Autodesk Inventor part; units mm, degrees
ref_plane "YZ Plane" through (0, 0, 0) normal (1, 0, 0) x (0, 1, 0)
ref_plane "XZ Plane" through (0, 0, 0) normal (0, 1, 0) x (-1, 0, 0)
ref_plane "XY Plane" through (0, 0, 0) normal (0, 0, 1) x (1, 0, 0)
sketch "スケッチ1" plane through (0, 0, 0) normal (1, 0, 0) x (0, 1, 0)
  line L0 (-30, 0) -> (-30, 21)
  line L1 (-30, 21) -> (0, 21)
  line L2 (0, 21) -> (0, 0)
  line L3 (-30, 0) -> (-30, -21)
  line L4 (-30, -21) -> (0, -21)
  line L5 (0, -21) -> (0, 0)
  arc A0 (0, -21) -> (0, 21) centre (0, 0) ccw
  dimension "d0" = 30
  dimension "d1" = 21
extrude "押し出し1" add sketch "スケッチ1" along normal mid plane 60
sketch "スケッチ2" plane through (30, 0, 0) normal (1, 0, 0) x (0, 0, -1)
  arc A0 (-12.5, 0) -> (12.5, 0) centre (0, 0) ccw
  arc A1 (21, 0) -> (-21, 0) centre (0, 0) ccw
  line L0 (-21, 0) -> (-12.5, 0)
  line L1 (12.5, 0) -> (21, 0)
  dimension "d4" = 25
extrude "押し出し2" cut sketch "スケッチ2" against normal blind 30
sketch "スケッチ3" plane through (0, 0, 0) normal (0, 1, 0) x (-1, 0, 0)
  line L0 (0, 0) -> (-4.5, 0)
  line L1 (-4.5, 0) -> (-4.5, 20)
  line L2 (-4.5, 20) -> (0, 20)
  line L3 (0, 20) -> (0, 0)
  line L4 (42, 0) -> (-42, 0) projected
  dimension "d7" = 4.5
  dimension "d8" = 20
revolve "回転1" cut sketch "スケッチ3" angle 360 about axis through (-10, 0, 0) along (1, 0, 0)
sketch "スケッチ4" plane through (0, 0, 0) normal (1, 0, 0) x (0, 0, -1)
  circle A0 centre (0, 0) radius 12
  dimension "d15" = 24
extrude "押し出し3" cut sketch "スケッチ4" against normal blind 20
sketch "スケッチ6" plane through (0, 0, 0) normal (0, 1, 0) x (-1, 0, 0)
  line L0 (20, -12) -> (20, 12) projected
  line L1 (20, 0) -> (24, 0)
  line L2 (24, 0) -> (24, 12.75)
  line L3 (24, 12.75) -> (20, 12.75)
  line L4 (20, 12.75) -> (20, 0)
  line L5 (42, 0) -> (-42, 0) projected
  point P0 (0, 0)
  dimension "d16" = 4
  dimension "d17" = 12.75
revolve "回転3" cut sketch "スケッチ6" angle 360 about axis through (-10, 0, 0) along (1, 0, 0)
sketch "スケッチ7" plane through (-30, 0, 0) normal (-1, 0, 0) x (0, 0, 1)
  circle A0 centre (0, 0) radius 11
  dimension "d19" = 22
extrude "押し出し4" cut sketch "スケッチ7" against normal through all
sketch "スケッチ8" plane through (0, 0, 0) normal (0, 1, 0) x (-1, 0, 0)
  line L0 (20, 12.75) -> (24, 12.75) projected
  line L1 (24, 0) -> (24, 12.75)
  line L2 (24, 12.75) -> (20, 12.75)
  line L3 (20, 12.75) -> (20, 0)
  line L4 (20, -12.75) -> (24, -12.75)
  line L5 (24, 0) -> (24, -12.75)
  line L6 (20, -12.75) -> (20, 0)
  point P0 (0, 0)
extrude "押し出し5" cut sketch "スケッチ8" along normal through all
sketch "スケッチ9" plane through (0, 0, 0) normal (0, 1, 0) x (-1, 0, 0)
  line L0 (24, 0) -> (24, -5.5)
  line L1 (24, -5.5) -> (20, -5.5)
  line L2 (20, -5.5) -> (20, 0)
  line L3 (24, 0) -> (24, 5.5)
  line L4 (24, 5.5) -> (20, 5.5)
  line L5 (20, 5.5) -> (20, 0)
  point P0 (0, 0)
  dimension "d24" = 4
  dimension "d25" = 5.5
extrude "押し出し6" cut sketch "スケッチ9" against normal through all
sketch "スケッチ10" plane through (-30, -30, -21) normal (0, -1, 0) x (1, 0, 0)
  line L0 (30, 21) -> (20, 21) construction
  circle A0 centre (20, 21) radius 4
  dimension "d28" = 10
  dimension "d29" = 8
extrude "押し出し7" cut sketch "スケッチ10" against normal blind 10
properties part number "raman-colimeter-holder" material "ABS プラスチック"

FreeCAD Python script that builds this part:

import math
import FreeCAD as App
import Part
import Sketcher

V = App.Vector
Q = App.Units.Quantity


def add_polygon(sketch, points):
    """Adds a closed chain of lines whose ends are joined by coincident constraints."""
    first, n = sketch.GeometryCount, len(points)
    for a, b in zip(points, points[1:] + points[:1]):
        sketch.addGeometry(Part.LineSegment(App.Vector(*a, 0), App.Vector(*b, 0)), False)
    for i in range(n):
        sketch.addConstraint(Sketcher.Constraint("Coincident", first + i, 2, first + (i + 1) % n, 1))

doc = App.newDocument("Part")
body = doc.addObject("PartDesign::Body", "Body")

# Sketch on YZ plane
sketch1 = doc.addObject("Sketcher::SketchObject", "Sketch")
body.addObject(sketch1)
sketch1.AttachmentSupport = (doc.YZ_Plane, [""])
sketch1.MapMode = "FlatFace"
sketch1.addGeometry(Part.LineSegment(V(-30, 21, 0), V(-30, -21, 0)), False)
sketch1.addGeometry(Part.LineSegment(V(-30, -21, 0), V(0, -21, 0)), False)
sketch1.addGeometry(Part.ArcOfCircle(Part.Circle(V(0, 0, 0), V(0, 0, 1), 21), math.radians(-90), math.radians(90)), False)
sketch1.addGeometry(Part.LineSegment(V(0, 21, 0), V(-30, 21, 0)), False)
sketch1.addConstraint(Sketcher.Constraint("Coincident", 0, 2, 1, 1))
sketch1.addConstraint(Sketcher.Constraint("Tangent", 1, 2, 2, 1))
sketch1.addConstraint(Sketcher.Constraint("Tangent", 2, 2, 3, 1))
sketch1.addConstraint(Sketcher.Constraint("Coincident", 3, 2, 0, 1))
sketch1.addConstraint(Sketcher.Constraint("Vertical", 0))
sketch1.addConstraint(Sketcher.Constraint("Horizontal", 1))
sketch1.addConstraint(Sketcher.Constraint("Horizontal", 3))
sketch1.addConstraint(Sketcher.Constraint("Coincident", 2, 3, -1, 1))
sketch1.addConstraint(Sketcher.Constraint("Radius", 2, Q("21 mm")))
sketch1.addConstraint(Sketcher.Constraint("DistanceX", 1, 1, 1, 2, Q("30 mm")))
pad1 = doc.addObject("PartDesign::Pad", "Pad")
body.addObject(pad1)
pad1.Profile = sketch1
pad1.Length = 60
pad1.Midplane = True

# Sketch on YZ plane
sketch2 = doc.addObject("Sketcher::SketchObject", "Sketch001")
body.addObject(sketch2)
sketch2.AttachmentSupport = (doc.YZ_Plane, [""])
sketch2.MapMode = "FlatFace"
sketch2.AttachmentOffset = App.Placement(V(0, 0, 30), App.Rotation())
sketch2.addGeometry(Part.LineSegment(V(0, 21, 0), V(0, 12, 0)), False)
sketch2.addGeometry(Part.ArcOfCircle(Part.Circle(V(0, 0, 0), V(0, 0, 1), 12), math.radians(90), math.radians(270)), False)
sketch2.addGeometry(Part.LineSegment(V(0, -12, 0), V(0, -21, 0)), False)
sketch2.addGeometry(Part.ArcOfCircle(Part.Circle(V(0, 0, 0), V(0, 0, 1), 21), math.radians(-90), math.radians(90)), False)
sketch2.addConstraint(Sketcher.Constraint("Coincident", 0, 2, 1, 1))
sketch2.addConstraint(Sketcher.Constraint("Coincident", 1, 2, 2, 1))
sketch2.addConstraint(Sketcher.Constraint("Coincident", 2, 2, 3, 1))
sketch2.addConstraint(Sketcher.Constraint("Coincident", 3, 2, 0, 1))
sketch2.addConstraint(Sketcher.Constraint("Vertical", 0))
sketch2.addConstraint(Sketcher.Constraint("Vertical", 2))
sketch2.addConstraint(Sketcher.Constraint("Coincident", 1, 3, -1, 1))
sketch2.addConstraint(Sketcher.Constraint("Coincident", 3, 3, -1, 1))
sketch2.addConstraint(Sketcher.Constraint("PointOnObject", 0, 2, -2))
sketch2.addConstraint(Sketcher.Constraint("PointOnObject", 1, 2, -2))
sketch2.addConstraint(Sketcher.Constraint("Radius", 1, Q("12.5 mm")))
sketch2.addConstraint(Sketcher.Constraint("Radius", 3, Q("21 mm")))
pocket1 = doc.addObject("PartDesign::Pocket", "Pocket")
body.addObject(pocket1)
pocket1.Profile = sketch2
pocket1.Length = 30

# Sketch on XZ plane
sketch3 = doc.addObject("Sketcher::SketchObject", "Sketch002")
body.addObject(sketch3)
sketch3.AttachmentSupport = (doc.XZ_Plane, [""])
sketch3.MapMode = "FlatFace"
add_polygon(sketch3, [(4.5, 0), (0, 0), (0, 20), (4.5, 20)])  # lines 0-3
sketch3.addConstraint(Sketcher.Constraint("Horizontal", 0))
sketch3.addConstraint(Sketcher.Constraint("Vertical", 1))
sketch3.addConstraint(Sketcher.Constraint("Horizontal", 2))
sketch3.addConstraint(Sketcher.Constraint("Vertical", 3))
sketch3.addConstraint(Sketcher.Constraint("Coincident", 0, 2, -1, 1))
sketch3.addConstraint(Sketcher.Constraint("DistanceY", 1, 1, 1, 2, Q("20 mm")))
sketch3.addConstraint(Sketcher.Constraint("DistanceX", 0, 2, 0, 1, Q("4.5 mm")))
groove = doc.addObject("PartDesign::Groove", "Groove")
body.addObject(groove)
groove.Profile = sketch3
groove.ReferenceAxis = (sketch3, ["H_Axis"])
groove.Angle = 360

# Sketch on YZ plane
sketch4 = doc.addObject("Sketcher::SketchObject", "Sketch003")
body.addObject(sketch4)
sketch4.AttachmentSupport = (doc.YZ_Plane, [""])
sketch4.MapMode = "FlatFace"
sketch4.addGeometry(Part.Circle(V(0, 0, 0), V(0, 0, 1), 12), False)
sketch4.addConstraint(Sketcher.Constraint("Coincident", 0, 3, -1, 1))
sketch4.addConstraint(Sketcher.Constraint("Diameter", 0, Q("24 mm")))
pocket2 = doc.addObject("PartDesign::Pocket", "Pocket001")
body.addObject(pocket2)
pocket2.Profile = sketch4
pocket2.Length = 20

# Sketch on XZ plane
sketch5 = doc.addObject("Sketcher::SketchObject", "Sketch004")
body.addObject(sketch5)
sketch5.AttachmentSupport = (doc.XZ_Plane, [""])
sketch5.MapMode = "FlatFace"
add_polygon(sketch5, [(-20, 12.8), (-20, 0), (-24, 0), (-24, 12.8)])  # lines 0-3
sketch5.addConstraint(Sketcher.Constraint("Vertical", 0))
sketch5.addConstraint(Sketcher.Constraint("Horizontal", 1))
sketch5.addConstraint(Sketcher.Constraint("Vertical", 2))
sketch5.addConstraint(Sketcher.Constraint("Horizontal", 3))
sketch5.addConstraint(Sketcher.Constraint("PointOnObject", 0, 2, -1))
sketch5.addConstraint(Sketcher.Constraint("DistanceX", 1, 2, 1, 1, Q("4 mm")))
sketch5.addConstraint(Sketcher.Constraint("DistanceY", 0, 2, 0, 1, Q("12.75 mm")))
sketch5.addConstraint(Sketcher.Constraint("DistanceX", 0, 2, -1, 1, Q("20 mm")))
groove2 = doc.addObject("PartDesign::Groove", "Groove001")
body.addObject(groove2)
groove2.Profile = sketch5
groove2.ReferenceAxis = (sketch5, ["H_Axis"])
groove2.Angle = 360

# Sketch on YZ plane
sketch6 = doc.addObject("Sketcher::SketchObject", "Sketch005")
body.addObject(sketch6)
sketch6.AttachmentSupport = (doc.YZ_Plane, [""])
sketch6.MapMode = "FlatFace"
sketch6.AttachmentOffset = App.Placement(V(0, 0, -30), App.Rotation())
sketch6.addGeometry(Part.Circle(V(0, 0, 0), V(0, 0, 1), 11), False)
sketch6.addConstraint(Sketcher.Constraint("Coincident", 0, 3, -1, 1))
sketch6.addConstraint(Sketcher.Constraint("Diameter", 0, Q("22 mm")))
pocket3 = doc.addObject("PartDesign::Pocket", "Pocket002")
body.addObject(pocket3)
pocket3.Profile = sketch6
pocket3.Type = "ThroughAll"
pocket3.Reversed = True

# Sketch on XZ plane
sketch7 = doc.addObject("Sketcher::SketchObject", "Sketch006")
body.addObject(sketch7)
sketch7.AttachmentSupport = (doc.XZ_Plane, [""])
sketch7.MapMode = "FlatFace"
add_polygon(sketch7, [(-24, 12.8), (-20, 12.8), (-20, -12.8), (-24, -12.8)])  # lines 0-3
sketch7.addConstraint(Sketcher.Constraint("Horizontal", 0))
sketch7.addConstraint(Sketcher.Constraint("Vertical", 1))
sketch7.addConstraint(Sketcher.Constraint("Horizontal", 2))
sketch7.addConstraint(Sketcher.Constraint("Vertical", 3))
sketch7.addConstraint(Sketcher.Constraint("DistanceX", 0, 1, 0, 2, Q("4 mm")))
sketch7.addConstraint(Sketcher.Constraint("DistanceY", 1, 2, 1, 1, Q("25.5 mm")))
sketch7.addConstraint(Sketcher.Constraint("DistanceX", 0, 2, -1, 1, Q("20 mm")))
sketch7.addConstraint(Sketcher.Constraint("DistanceY", -1, 1, 0, 2, Q("12.75 mm")))
pocket4 = doc.addObject("PartDesign::Pocket", "Pocket003")
body.addObject(pocket4)
pocket4.Profile = sketch7
pocket4.Type = "ThroughAll"

# Sketch on XZ plane
sketch8 = doc.addObject("Sketcher::SketchObject", "Sketch007")
body.addObject(sketch8)
sketch8.AttachmentSupport = (doc.XZ_Plane, [""])
sketch8.MapMode = "FlatFace"
add_polygon(sketch8, [(-24, -5.5), (-24, 5.5), (-20, 5.5), (-20, -5.5)])  # lines 0-3
sketch8.addConstraint(Sketcher.Constraint("Vertical", 0))
sketch8.addConstraint(Sketcher.Constraint("Horizontal", 1))
sketch8.addConstraint(Sketcher.Constraint("Vertical", 2))
sketch8.addConstraint(Sketcher.Constraint("Horizontal", 3))
sketch8.addConstraint(Sketcher.Constraint("DistanceX", 1, 1, 1, 2, Q("4 mm")))
sketch8.addConstraint(Sketcher.Constraint("DistanceY", -1, 1, 0, 2, Q("5.5 mm")))
sketch8.addConstraint(Sketcher.Constraint("DistanceY", 2, 2, -1, 1, Q("5.5 mm")))
sketch8.addConstraint(Sketcher.Constraint("DistanceX", 0, 2, -1, 1, Q("24 mm")))
pocket5 = doc.addObject("PartDesign::Pocket", "Pocket004")
body.addObject(pocket5)
pocket5.Profile = sketch8
pocket5.Type = "ThroughAll"
pocket5.Reversed = True

# Sketch on XZ plane
sketch9 = doc.addObject("Sketcher::SketchObject", "Sketch008")
body.addObject(sketch9)
sketch9.AttachmentSupport = (doc.XZ_Plane, [""])
sketch9.MapMode = "FlatFace"
sketch9.AttachmentOffset = App.Placement(V(0, 0, 30), App.Rotation())
sketch9.addGeometry(Part.Circle(V(-10, 0, 0), V(0, 0, 1), 4), False)
sketch9.addConstraint(Sketcher.Constraint("PointOnObject", 0, 3, -1))
sketch9.addConstraint(Sketcher.Constraint("Diameter", 0, Q("8 mm")))
sketch9.addConstraint(Sketcher.Constraint("DistanceX", 0, 3, -1, 1, Q("10 mm")))
pocket6 = doc.addObject("PartDesign::Pocket", "Pocket005")
body.addObject(pocket6)
pocket6.Profile = sketch9
pocket6.Length = 10

doc.recompute()
